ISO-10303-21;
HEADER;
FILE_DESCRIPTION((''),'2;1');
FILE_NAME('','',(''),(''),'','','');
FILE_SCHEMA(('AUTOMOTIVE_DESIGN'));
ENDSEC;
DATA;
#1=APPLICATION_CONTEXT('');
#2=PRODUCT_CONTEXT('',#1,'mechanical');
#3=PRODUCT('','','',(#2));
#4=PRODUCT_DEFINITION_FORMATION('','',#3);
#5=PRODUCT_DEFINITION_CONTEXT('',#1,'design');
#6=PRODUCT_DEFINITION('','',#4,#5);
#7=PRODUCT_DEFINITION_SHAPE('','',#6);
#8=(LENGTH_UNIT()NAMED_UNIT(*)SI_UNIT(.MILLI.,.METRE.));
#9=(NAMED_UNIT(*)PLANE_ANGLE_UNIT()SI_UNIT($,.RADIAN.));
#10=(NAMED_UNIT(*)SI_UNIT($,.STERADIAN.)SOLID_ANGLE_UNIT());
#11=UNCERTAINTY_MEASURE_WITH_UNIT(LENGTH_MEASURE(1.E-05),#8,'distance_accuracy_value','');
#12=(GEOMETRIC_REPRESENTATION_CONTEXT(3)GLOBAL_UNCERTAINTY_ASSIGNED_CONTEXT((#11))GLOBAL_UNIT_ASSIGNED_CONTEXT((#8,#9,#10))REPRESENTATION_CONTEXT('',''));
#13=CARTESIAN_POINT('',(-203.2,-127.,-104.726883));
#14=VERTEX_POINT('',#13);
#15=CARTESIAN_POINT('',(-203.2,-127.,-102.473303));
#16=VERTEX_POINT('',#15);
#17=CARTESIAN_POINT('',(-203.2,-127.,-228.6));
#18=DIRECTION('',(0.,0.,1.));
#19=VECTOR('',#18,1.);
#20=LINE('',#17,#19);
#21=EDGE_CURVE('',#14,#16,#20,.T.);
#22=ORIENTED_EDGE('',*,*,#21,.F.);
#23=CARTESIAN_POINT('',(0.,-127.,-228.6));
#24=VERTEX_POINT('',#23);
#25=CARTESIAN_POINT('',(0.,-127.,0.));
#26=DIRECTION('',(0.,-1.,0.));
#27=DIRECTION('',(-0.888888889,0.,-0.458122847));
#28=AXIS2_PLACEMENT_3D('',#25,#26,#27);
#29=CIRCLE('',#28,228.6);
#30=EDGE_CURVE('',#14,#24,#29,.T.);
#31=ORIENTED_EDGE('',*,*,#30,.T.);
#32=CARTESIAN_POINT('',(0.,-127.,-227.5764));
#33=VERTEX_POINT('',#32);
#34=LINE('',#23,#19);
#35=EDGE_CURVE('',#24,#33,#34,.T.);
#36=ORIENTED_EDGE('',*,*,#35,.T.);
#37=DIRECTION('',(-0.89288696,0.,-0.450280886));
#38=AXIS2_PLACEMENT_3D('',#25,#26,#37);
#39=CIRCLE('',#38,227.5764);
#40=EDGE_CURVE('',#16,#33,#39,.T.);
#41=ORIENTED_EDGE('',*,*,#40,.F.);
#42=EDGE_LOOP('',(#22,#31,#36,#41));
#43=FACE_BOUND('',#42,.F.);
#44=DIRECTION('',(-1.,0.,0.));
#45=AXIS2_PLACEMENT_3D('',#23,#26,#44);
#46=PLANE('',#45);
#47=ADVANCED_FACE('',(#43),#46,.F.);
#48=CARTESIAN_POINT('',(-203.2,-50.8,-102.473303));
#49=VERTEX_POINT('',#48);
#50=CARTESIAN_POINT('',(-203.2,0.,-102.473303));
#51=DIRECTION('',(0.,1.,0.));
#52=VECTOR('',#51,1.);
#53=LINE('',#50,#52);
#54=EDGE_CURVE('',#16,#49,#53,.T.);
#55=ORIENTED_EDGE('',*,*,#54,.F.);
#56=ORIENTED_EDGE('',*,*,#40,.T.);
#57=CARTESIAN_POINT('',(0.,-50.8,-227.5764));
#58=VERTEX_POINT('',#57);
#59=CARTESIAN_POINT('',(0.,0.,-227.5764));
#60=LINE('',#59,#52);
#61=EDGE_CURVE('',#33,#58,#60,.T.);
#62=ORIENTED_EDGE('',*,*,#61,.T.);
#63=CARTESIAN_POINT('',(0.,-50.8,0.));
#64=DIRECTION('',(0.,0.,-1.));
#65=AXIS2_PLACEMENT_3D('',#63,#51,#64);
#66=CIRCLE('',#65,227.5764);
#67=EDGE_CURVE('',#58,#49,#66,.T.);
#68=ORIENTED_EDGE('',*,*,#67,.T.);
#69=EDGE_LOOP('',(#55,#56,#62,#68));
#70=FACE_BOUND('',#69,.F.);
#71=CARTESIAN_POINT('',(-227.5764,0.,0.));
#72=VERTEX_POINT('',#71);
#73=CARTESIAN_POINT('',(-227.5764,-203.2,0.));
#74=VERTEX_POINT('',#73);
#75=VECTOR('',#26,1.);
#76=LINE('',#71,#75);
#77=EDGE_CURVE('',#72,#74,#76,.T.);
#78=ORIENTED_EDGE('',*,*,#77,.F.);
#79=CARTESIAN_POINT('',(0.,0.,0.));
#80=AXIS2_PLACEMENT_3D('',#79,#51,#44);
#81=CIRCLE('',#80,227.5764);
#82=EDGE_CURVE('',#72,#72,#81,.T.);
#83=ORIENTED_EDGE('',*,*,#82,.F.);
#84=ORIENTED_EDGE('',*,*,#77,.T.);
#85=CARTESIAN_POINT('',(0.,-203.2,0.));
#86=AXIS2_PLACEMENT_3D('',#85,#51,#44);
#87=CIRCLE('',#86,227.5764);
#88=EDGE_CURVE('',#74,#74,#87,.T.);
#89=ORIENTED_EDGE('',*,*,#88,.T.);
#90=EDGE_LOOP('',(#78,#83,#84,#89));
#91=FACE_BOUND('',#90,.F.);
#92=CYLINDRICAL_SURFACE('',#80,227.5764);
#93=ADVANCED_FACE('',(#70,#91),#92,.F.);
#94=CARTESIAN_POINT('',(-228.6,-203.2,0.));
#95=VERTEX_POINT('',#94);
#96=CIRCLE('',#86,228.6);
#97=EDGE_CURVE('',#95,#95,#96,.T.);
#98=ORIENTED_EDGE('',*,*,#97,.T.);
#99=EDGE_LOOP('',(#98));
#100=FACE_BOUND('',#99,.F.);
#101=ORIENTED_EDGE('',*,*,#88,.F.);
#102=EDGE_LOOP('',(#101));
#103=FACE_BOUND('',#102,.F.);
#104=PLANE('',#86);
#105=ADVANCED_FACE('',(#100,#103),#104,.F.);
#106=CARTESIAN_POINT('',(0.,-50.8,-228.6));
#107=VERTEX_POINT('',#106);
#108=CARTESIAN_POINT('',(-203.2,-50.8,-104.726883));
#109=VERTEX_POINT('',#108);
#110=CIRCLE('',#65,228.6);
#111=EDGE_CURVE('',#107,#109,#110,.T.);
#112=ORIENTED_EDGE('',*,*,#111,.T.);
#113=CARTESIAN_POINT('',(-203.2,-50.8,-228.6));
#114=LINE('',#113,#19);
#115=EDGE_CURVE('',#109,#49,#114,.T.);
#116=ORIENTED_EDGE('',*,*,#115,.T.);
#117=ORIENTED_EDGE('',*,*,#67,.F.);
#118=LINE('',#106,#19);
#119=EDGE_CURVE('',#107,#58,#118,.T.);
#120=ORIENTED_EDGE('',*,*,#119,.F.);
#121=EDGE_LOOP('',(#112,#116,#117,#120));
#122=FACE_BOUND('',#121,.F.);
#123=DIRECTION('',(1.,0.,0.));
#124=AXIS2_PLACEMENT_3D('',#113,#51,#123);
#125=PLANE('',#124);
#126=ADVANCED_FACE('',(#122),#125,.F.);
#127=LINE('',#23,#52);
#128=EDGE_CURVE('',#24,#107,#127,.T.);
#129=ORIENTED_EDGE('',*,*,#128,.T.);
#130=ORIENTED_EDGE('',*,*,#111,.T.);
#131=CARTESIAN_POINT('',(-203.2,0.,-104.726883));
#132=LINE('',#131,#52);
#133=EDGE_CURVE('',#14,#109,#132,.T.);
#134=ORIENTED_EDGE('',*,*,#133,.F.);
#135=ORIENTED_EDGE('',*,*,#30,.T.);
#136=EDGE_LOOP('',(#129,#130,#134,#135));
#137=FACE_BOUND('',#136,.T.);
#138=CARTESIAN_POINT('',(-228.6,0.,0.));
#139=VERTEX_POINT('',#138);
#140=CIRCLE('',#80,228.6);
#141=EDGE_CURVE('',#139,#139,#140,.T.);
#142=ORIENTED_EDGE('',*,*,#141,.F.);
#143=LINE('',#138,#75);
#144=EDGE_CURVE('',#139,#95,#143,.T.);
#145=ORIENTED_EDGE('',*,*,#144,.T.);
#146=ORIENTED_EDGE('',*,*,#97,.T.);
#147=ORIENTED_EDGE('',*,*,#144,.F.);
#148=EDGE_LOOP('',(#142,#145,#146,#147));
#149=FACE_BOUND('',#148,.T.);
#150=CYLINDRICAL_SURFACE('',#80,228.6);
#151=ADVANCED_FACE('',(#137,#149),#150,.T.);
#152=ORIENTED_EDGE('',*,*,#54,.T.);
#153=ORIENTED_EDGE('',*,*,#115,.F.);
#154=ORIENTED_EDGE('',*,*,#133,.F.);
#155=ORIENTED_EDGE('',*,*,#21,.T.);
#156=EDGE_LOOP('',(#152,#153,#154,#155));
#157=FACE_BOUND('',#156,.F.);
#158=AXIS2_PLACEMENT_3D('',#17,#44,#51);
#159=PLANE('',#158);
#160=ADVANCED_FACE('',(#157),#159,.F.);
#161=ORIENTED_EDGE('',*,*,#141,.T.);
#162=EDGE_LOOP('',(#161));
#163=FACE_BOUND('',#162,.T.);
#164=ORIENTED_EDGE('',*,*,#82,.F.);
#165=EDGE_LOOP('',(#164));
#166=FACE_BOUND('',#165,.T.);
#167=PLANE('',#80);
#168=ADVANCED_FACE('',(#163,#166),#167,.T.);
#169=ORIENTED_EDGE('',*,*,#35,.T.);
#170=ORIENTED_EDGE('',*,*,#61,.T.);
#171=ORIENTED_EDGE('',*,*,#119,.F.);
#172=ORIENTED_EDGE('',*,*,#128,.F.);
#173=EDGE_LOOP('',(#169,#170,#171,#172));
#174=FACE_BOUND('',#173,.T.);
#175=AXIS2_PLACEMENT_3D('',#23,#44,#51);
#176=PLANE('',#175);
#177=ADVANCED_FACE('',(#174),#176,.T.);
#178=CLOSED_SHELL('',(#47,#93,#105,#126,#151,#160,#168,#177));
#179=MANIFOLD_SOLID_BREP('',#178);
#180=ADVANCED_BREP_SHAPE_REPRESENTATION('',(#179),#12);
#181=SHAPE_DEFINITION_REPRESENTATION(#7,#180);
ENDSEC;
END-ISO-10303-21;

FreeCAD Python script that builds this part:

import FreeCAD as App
import Part
import Sketcher
Q = App.Units.Quantity


def add_polygon(sketch, points):
    """Adds a closed chain of lines whose ends are joined by coincident constraints."""
    first, n = sketch.GeometryCount, len(points)
    for a, b in zip(points, points[1:] + points[:1]):
        sketch.addGeometry(Part.LineSegment(App.Vector(*a, 0), App.Vector(*b, 0)), False)
    for i in range(n):
        sketch.addConstraint(Sketcher.Constraint("Coincident", first + i, 2, first + (i + 1) % n, 1))

doc = App.newDocument("Part")
params = doc.addObject("Spreadsheet::Sheet", "Params")
for row, (alias, value) in enumerate([
    ("sketch1_diameter", "18 in"),
    ("pad1_length", "8 in"),
    ("sketch2_width", "1 in"),
    ("sketch2_height", "3 in"),
    ("pocket1_length", "9 in"),
    ("sketch3_width", "8 in"),
    ("sketch3_height", "3 in"),
    ("pocket2_length", "9 in"),
], start=1):
    params.set(f"A{row}", alias)
    params.set(f"B{row}", "=" + value)
    params.setAlias(f"B{row}", alias)

body = doc.addObject("PartDesign::Body", "Body")

# Sketch on XZ plane
sketch1 = doc.addObject("Sketcher::SketchObject", "Sketch")
body.addObject(sketch1)
sketch1.AttachmentSupport = (doc.XZ_Plane, [""])
sketch1.MapMode = "FlatFace"
sketch1.addGeometry(Part.Circle(App.Vector(0, 0, 0), App.Vector(0, 0, 1), 228.6), False)
sketch1.addGeometry(Part.Circle(App.Vector(0, 0, 0), App.Vector(0, 0, 1), 227.5764), False)
sketch1.addConstraint(Sketcher.Constraint("Coincident", 0, 3, -1, 1))
sketch1.addConstraint(Sketcher.Constraint("Coincident", 1, 3, -1, 1))
sketch1.addConstraint(Sketcher.Constraint("Diameter", 0, Q("18 in")))
sketch1.addConstraint(Sketcher.Constraint("Diameter", 1, Q("17.9194 in")))
sketch1.setExpression("Constraints[2]", "Params.sketch1_diameter")
pad1 = doc.addObject("PartDesign::Pad", "Pad")
body.addObject(pad1)
pad1.Profile = sketch1
pad1.setExpression("Length", "Params.pad1_length")

# Sketch on XY plane
sketch2 = doc.addObject("Sketcher::SketchObject", "Sketch001")
body.addObject(sketch2)
sketch2.AttachmentSupport = (doc.XY_Plane, [""])
sketch2.MapMode = "FlatFace"
sketch2.AttachmentOffset = App.Placement(App.Vector(0, 0, -9 * 25.4), App.Rotation())
add_polygon(sketch2, [(0, -50.8), (0, -127), (-25.4, -127), (-25.4, -50.8)])  # lines 0-3
sketch2.addConstraint(Sketcher.Constraint("Vertical", 0))
sketch2.addConstraint(Sketcher.Constraint("Horizontal", 1))
sketch2.addConstraint(Sketcher.Constraint("Vertical", 2))
sketch2.addConstraint(Sketcher.Constraint("Horizontal", 3))
sketch2.addConstraint(Sketcher.Constraint("PointOnObject", 0, 2, -2))
sketch2.addConstraint(Sketcher.Constraint("DistanceX", 1, 2, 1, 1, Q("1 in")))
sketch2.addConstraint(Sketcher.Constraint("DistanceY", 0, 2, 0, 1, Q("3 in")))
sketch2.addConstraint(Sketcher.Constraint("DistanceY", 2, 2, -1, 1, Q("2 in")))
sketch2.setExpression("Constraints[9]", "Params.sketch2_width")
sketch2.setExpression("Constraints[10]", "Params.sketch2_height")
pocket1 = doc.addObject("PartDesign::Pocket", "Pocket")
body.addObject(pocket1)
pocket1.Profile = sketch2
pocket1.setExpression("Length", "Params.pocket1_length")
pocket1.Reversed = True

# Sketch on XY plane
sketch3 = doc.addObject("Sketcher::SketchObject", "Sketch002")
body.addObject(sketch3)
sketch3.AttachmentSupport = (doc.XY_Plane, [""])
sketch3.MapMode = "FlatFace"
sketch3.AttachmentOffset = App.Placement(App.Vector(0, 0, -9 * 25.4), App.Rotation())
add_polygon(sketch3, [(0, -50.8), (0, -127), (-203.2, -127), (-203.2, -50.8)])  # lines 0-3
sketch3.addConstraint(Sketcher.Constraint("Vertical", 0))
sketch3.addConstraint(Sketcher.Constraint("Horizontal", 1))
sketch3.addConstraint(Sketcher.Constraint("Vertical", 2))
sketch3.addConstraint(Sketcher.Constraint("Horizontal", 3))
sketch3.addConstraint(Sketcher.Constraint("PointOnObject", 0, 2, -2))
sketch3.addConstraint(Sketcher.Constraint("DistanceX", 1, 2, 1, 1, Q("8 in")))
sketch3.addConstraint(Sketcher.Constraint("DistanceY", 0, 2, 0, 1, Q("3 in")))
sketch3.addConstraint(Sketcher.Constraint("DistanceY", 0, 2, -1, 1, Q("5 in")))
sketch3.setExpression("Constraints[9]", "Params.sketch3_width")
sketch3.setExpression("Constraints[10]", "Params.sketch3_height")
pocket2 = doc.addObject("PartDesign::Pocket", "Pocket001")
body.addObject(pocket2)
pocket2.Profile = sketch3
pocket2.setExpression("Length", "Params.pocket2_length")
pocket2.Reversed = True

doc.recompute()
